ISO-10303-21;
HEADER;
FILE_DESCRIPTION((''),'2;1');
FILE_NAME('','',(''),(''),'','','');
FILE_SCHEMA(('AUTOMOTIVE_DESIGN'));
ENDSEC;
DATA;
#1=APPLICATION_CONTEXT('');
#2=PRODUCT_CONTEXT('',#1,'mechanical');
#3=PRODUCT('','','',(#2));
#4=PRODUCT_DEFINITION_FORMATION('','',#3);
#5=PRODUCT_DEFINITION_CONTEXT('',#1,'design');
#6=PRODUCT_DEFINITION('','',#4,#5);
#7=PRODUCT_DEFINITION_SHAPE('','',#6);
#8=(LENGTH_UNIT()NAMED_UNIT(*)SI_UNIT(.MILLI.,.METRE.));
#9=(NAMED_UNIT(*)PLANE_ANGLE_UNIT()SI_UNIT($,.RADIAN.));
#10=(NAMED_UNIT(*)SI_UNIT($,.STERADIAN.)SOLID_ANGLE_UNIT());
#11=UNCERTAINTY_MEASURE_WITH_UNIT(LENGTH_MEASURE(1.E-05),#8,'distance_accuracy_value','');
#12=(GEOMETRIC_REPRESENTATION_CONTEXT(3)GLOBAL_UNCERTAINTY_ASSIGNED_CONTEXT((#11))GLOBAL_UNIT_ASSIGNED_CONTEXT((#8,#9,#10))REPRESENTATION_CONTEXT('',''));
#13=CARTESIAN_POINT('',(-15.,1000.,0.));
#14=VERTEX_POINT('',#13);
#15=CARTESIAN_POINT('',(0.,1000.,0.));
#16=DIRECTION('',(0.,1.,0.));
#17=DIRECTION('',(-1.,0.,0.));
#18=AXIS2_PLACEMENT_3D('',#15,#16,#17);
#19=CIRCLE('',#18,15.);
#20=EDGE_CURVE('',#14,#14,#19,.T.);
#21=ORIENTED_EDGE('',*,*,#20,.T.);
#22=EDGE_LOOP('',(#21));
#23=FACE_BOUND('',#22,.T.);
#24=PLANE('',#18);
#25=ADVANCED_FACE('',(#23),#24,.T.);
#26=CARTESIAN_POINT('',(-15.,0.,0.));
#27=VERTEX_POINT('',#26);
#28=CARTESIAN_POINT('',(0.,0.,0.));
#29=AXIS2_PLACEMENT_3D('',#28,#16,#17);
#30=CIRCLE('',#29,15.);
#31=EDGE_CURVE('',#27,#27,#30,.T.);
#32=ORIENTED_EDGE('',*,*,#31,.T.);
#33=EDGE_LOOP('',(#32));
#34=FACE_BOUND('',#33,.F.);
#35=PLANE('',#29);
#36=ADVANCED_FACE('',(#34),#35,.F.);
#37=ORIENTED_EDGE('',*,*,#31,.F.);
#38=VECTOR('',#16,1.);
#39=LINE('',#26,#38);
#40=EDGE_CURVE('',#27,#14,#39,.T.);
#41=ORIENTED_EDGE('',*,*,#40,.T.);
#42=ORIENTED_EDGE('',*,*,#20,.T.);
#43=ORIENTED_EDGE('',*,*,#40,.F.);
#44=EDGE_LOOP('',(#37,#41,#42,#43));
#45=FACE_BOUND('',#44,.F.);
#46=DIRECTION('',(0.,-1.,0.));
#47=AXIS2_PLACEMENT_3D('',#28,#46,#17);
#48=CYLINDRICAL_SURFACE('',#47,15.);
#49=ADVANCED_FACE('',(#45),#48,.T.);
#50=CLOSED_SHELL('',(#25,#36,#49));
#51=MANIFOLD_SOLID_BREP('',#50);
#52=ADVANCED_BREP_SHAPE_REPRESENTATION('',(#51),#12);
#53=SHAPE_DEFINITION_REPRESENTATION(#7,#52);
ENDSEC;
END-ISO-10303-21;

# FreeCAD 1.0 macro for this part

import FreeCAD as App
import Part
import Sketcher
from FreeCAD import Vector

doc = App.newDocument("Part")
body = doc.addObject("PartDesign::Body", "Body")

# Sketch on XZ plane
sketch1 = body.newObject("Sketcher::SketchObject", "Sketch")
sketch1.AttachmentSupport = (doc.getObject("XZ_Plane"), [""])
sketch1.MapMode = "FlatFace"
sketch1.addGeometry(Part.Circle(Vector(0, 0, 0), Vector(0, 0, 1), 15), False)
sketch1.addConstraint([
    Sketcher.Constraint("Coincident", 0, 3, -1, 1),
    Sketcher.Constraint("Diameter", 0, 30.0),
])
pad1 = body.newObject("PartDesign::Pad", "Pad")
pad1.Profile = sketch1
pad1.Length = 1000
pad1.Reversed = True

doc.recompute()
